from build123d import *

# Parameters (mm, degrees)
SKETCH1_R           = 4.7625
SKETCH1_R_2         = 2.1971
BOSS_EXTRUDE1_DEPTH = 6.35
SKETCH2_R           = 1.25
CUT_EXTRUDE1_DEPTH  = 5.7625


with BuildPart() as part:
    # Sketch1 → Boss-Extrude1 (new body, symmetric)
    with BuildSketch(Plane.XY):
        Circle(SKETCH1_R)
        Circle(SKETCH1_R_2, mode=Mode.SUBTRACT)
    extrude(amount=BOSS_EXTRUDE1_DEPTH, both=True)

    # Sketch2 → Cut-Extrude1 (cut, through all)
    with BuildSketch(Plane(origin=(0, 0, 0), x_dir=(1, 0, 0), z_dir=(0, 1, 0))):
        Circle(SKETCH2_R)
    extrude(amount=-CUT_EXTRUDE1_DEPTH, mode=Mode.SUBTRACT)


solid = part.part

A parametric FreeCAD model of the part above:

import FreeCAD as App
import Part
import Sketcher

V = App.Vector
Q = App.Units.Quantity

doc = App.newDocument("Part")
body = doc.addObject("PartDesign::Body", "Body")

sketch1 = body.newObject("Sketcher::SketchObject", "Sketch")
sketch1.AttachmentSupport = (doc.getObject("XY_Plane"), [""])
sketch1.MapMode = "FlatFace"
sketch1.addGeometry([
    Part.Circle(V(0, 0, 0), V(0, 0, 1), 4.7625),
    Part.Circle(V(0, 0, 0), V(0, 0, 1), 2.1971),
], False)
sketch1.addConstraint([
    Sketcher.Constraint("Coincident", 0, 3, -1, 1),
    Sketcher.Constraint("Coincident", 1, 3, -1, 1),
    Sketcher.Constraint("Diameter", 0, Q("0.375 in")),
    Sketcher.Constraint("Diameter", 1, Q("0.173 in")),
])
pad1 = body.newObject("PartDesign::Pad", "Pad")
pad1.Profile = sketch1
pad1.Length = Q("0.5 in")
pad1.Midplane = True

sketch2 = body.newObject("Sketcher::SketchObject", "Sketch001")
sketch2.AttachmentSupport = (doc.getObject("XZ_Plane"), [""])
sketch2.MapMode = "FlatFace"
sketch2.addGeometry(Part.Circle(V(0, 0, 0), V(0, 0, 1), 1.25), False)
sketch2.addConstraint([
    Sketcher.Constraint("Coincident", 0, 3, -1, 1),
    Sketcher.Constraint("Diameter", 0, Q("2.5 mm")),
])
pocket1 = body.newObject("PartDesign::Pocket", "Pocket")
pocket1.Profile = sketch2
pocket1.Type = "ThroughAll"
pocket1.Reversed = True

doc.recompute()
